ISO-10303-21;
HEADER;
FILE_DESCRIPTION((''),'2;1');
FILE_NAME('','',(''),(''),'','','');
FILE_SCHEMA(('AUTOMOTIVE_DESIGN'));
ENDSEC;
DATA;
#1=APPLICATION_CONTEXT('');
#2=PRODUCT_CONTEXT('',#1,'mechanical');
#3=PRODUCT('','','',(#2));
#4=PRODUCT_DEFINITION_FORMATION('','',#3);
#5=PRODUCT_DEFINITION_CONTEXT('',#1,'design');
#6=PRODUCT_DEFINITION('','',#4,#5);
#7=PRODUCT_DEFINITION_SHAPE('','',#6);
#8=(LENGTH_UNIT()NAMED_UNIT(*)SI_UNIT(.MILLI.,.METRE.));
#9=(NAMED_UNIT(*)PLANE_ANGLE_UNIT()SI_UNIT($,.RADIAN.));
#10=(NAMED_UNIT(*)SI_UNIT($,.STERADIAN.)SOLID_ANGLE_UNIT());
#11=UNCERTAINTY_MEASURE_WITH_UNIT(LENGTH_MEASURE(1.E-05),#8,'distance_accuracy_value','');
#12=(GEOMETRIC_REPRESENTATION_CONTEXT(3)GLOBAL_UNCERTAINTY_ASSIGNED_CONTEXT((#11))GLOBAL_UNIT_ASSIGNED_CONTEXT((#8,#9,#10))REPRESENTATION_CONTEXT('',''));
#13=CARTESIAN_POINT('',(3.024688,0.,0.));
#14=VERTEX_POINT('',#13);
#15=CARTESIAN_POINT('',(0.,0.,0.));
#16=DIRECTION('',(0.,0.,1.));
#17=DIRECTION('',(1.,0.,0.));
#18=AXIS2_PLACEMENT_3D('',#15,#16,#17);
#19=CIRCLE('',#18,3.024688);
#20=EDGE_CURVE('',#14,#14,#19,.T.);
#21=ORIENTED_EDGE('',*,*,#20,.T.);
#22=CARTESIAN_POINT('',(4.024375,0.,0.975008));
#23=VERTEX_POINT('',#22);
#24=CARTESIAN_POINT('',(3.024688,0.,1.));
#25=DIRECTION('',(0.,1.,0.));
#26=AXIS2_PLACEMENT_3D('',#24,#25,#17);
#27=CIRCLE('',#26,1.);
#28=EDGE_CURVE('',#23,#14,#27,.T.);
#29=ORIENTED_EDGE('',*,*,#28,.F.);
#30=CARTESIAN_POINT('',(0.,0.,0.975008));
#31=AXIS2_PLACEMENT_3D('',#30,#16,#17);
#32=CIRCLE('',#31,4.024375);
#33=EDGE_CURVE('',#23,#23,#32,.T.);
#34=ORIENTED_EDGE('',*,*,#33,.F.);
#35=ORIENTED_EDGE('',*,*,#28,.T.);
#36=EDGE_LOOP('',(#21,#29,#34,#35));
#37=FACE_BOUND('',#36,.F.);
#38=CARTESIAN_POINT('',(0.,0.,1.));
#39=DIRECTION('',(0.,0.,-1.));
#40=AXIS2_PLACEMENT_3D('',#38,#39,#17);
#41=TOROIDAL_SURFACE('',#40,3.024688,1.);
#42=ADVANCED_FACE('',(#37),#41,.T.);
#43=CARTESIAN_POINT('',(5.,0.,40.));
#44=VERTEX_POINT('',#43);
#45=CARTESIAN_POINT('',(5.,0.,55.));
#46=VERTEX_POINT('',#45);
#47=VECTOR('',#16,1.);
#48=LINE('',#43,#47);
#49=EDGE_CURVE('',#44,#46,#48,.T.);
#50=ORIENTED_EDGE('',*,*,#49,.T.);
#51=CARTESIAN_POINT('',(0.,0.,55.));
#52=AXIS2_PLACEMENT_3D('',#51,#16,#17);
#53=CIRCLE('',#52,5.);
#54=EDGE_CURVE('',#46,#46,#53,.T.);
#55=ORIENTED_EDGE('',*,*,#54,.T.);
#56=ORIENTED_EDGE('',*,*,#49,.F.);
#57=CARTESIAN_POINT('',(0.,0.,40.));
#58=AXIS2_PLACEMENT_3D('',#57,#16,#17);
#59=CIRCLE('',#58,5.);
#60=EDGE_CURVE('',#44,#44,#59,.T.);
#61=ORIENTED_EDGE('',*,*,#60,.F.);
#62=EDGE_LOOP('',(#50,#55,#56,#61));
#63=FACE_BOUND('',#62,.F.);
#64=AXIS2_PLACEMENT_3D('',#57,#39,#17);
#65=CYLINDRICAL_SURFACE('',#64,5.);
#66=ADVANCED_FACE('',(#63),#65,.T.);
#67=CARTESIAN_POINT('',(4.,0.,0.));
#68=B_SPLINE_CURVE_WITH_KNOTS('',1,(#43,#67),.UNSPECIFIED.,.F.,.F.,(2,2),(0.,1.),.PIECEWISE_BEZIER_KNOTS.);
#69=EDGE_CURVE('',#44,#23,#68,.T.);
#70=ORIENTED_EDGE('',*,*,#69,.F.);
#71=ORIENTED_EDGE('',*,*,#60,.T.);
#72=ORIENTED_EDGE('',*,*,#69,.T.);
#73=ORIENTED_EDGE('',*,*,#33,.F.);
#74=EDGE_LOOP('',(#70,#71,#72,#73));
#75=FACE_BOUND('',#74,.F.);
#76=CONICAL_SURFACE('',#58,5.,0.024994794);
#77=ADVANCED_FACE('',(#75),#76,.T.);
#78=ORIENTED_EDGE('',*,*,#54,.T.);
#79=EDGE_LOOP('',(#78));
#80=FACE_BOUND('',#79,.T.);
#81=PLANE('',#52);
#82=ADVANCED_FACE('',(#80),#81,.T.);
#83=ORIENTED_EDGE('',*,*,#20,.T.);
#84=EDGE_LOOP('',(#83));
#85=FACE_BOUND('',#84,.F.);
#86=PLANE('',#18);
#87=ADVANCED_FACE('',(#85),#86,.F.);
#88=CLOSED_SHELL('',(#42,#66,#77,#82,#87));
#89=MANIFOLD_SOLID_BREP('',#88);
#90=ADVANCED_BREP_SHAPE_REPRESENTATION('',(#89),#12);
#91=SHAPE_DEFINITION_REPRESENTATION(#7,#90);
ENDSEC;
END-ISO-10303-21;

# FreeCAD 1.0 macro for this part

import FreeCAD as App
import Part
import Sketcher
from FreeCAD import Vector
Q = App.Units.Quantity


def edges_at(feature, points):
    """Names of the edges that pass closest to the given points."""
    edges = feature.Shape.Edges
    near = lambda p: min(range(len(edges)), key=lambda i: edges[i].distToShape(Part.Vertex(*p))[0])
    return sorted({f"Edge{near(p) + 1}" for p in points})

doc = App.newDocument("Part")
params = doc.addObject("Spreadsheet::Sheet", "Params")
for row, (alias, value) in enumerate([
    ("sketch1_diameter", "10 mm"),
    ("sketch2_diameter", "8 mm"),
    ("fillet_radius", "1 mm"),
    ("sketch3_diameter", "10 mm"),
    ("pad1_length", "15 mm"),
], start=1):
    params.set(f"A{row}", alias)
    params.set(f"B{row}", "=" + value)
    params.setAlias(f"B{row}", alias)

body = doc.addObject("PartDesign::Body", "Body")

# Sketch on XY plane
sketch1 = body.newObject("Sketcher::SketchObject", "Sketch")
sketch1.AttachmentSupport = (doc.getObject("XY_Plane"), [""])
sketch1.MapMode = "FlatFace"
sketch1.AttachmentOffset = App.Placement(Vector(0, 0, 40), App.Rotation())
sketch1.addGeometry(Part.Circle(Vector(0, 0, 0), Vector(0, 0, 1), 5), False)
sketch1.addConstraint(Sketcher.Constraint("Coincident", 0, 3, -1, 1))
sketch1.addConstraint(Sketcher.Constraint("Diameter", 0, Q("10 mm")))
sketch1.setExpression("Constraints[1]", "Params.sketch1_diameter")

# Sketch on XY plane
sketch2 = body.newObject("Sketcher::SketchObject", "Sketch001")
sketch2.AttachmentSupport = (doc.getObject("XY_Plane"), [""])
sketch2.MapMode = "FlatFace"
sketch2.addGeometry(Part.Circle(Vector(0, 0, 0), Vector(0, 0, 1), 4), False)
sketch2.addConstraint(Sketcher.Constraint("Coincident", 0, 3, -1, 1))
sketch2.addConstraint(Sketcher.Constraint("Diameter", 0, Q("8 mm")))
sketch2.setExpression("Constraints[1]", "Params.sketch2_diameter")

additiveloft = body.newObject("PartDesign::AdditiveLoft", "AdditiveLoft")
additiveloft.Profile = sketch1
additiveloft.Sections = [sketch2]
doc.recompute()

fillet = body.newObject("PartDesign::Fillet", "Fillet")
fillet.Base = (additiveloft, edges_at(additiveloft, [(-4, 0, 0)]))
fillet.setExpression("Radius", "Params.fillet_radius")

# Sketch on XY plane
sketch3 = body.newObject("Sketcher::SketchObject", "Sketch002")
sketch3.AttachmentSupport = (doc.getObject("XY_Plane"), [""])
sketch3.MapMode = "FlatFace"
sketch3.AttachmentOffset = App.Placement(Vector(0, 0, 40), App.Rotation())
sketch3.addGeometry(Part.Circle(Vector(0, 0, 0), Vector(0, 0, 1), 5), False)
sketch3.addConstraint(Sketcher.Constraint("Coincident", 0, 3, -1, 1))
sketch3.addConstraint(Sketcher.Constraint("Diameter", 0, Q("10 mm")))
sketch3.setExpression("Constraints[1]", "Params.sketch3_diameter")
pad1 = body.newObject("PartDesign::Pad", "Pad")
pad1.Profile = sketch3
pad1.setExpression("Length", "Params.pad1_length")

doc.recompute()
